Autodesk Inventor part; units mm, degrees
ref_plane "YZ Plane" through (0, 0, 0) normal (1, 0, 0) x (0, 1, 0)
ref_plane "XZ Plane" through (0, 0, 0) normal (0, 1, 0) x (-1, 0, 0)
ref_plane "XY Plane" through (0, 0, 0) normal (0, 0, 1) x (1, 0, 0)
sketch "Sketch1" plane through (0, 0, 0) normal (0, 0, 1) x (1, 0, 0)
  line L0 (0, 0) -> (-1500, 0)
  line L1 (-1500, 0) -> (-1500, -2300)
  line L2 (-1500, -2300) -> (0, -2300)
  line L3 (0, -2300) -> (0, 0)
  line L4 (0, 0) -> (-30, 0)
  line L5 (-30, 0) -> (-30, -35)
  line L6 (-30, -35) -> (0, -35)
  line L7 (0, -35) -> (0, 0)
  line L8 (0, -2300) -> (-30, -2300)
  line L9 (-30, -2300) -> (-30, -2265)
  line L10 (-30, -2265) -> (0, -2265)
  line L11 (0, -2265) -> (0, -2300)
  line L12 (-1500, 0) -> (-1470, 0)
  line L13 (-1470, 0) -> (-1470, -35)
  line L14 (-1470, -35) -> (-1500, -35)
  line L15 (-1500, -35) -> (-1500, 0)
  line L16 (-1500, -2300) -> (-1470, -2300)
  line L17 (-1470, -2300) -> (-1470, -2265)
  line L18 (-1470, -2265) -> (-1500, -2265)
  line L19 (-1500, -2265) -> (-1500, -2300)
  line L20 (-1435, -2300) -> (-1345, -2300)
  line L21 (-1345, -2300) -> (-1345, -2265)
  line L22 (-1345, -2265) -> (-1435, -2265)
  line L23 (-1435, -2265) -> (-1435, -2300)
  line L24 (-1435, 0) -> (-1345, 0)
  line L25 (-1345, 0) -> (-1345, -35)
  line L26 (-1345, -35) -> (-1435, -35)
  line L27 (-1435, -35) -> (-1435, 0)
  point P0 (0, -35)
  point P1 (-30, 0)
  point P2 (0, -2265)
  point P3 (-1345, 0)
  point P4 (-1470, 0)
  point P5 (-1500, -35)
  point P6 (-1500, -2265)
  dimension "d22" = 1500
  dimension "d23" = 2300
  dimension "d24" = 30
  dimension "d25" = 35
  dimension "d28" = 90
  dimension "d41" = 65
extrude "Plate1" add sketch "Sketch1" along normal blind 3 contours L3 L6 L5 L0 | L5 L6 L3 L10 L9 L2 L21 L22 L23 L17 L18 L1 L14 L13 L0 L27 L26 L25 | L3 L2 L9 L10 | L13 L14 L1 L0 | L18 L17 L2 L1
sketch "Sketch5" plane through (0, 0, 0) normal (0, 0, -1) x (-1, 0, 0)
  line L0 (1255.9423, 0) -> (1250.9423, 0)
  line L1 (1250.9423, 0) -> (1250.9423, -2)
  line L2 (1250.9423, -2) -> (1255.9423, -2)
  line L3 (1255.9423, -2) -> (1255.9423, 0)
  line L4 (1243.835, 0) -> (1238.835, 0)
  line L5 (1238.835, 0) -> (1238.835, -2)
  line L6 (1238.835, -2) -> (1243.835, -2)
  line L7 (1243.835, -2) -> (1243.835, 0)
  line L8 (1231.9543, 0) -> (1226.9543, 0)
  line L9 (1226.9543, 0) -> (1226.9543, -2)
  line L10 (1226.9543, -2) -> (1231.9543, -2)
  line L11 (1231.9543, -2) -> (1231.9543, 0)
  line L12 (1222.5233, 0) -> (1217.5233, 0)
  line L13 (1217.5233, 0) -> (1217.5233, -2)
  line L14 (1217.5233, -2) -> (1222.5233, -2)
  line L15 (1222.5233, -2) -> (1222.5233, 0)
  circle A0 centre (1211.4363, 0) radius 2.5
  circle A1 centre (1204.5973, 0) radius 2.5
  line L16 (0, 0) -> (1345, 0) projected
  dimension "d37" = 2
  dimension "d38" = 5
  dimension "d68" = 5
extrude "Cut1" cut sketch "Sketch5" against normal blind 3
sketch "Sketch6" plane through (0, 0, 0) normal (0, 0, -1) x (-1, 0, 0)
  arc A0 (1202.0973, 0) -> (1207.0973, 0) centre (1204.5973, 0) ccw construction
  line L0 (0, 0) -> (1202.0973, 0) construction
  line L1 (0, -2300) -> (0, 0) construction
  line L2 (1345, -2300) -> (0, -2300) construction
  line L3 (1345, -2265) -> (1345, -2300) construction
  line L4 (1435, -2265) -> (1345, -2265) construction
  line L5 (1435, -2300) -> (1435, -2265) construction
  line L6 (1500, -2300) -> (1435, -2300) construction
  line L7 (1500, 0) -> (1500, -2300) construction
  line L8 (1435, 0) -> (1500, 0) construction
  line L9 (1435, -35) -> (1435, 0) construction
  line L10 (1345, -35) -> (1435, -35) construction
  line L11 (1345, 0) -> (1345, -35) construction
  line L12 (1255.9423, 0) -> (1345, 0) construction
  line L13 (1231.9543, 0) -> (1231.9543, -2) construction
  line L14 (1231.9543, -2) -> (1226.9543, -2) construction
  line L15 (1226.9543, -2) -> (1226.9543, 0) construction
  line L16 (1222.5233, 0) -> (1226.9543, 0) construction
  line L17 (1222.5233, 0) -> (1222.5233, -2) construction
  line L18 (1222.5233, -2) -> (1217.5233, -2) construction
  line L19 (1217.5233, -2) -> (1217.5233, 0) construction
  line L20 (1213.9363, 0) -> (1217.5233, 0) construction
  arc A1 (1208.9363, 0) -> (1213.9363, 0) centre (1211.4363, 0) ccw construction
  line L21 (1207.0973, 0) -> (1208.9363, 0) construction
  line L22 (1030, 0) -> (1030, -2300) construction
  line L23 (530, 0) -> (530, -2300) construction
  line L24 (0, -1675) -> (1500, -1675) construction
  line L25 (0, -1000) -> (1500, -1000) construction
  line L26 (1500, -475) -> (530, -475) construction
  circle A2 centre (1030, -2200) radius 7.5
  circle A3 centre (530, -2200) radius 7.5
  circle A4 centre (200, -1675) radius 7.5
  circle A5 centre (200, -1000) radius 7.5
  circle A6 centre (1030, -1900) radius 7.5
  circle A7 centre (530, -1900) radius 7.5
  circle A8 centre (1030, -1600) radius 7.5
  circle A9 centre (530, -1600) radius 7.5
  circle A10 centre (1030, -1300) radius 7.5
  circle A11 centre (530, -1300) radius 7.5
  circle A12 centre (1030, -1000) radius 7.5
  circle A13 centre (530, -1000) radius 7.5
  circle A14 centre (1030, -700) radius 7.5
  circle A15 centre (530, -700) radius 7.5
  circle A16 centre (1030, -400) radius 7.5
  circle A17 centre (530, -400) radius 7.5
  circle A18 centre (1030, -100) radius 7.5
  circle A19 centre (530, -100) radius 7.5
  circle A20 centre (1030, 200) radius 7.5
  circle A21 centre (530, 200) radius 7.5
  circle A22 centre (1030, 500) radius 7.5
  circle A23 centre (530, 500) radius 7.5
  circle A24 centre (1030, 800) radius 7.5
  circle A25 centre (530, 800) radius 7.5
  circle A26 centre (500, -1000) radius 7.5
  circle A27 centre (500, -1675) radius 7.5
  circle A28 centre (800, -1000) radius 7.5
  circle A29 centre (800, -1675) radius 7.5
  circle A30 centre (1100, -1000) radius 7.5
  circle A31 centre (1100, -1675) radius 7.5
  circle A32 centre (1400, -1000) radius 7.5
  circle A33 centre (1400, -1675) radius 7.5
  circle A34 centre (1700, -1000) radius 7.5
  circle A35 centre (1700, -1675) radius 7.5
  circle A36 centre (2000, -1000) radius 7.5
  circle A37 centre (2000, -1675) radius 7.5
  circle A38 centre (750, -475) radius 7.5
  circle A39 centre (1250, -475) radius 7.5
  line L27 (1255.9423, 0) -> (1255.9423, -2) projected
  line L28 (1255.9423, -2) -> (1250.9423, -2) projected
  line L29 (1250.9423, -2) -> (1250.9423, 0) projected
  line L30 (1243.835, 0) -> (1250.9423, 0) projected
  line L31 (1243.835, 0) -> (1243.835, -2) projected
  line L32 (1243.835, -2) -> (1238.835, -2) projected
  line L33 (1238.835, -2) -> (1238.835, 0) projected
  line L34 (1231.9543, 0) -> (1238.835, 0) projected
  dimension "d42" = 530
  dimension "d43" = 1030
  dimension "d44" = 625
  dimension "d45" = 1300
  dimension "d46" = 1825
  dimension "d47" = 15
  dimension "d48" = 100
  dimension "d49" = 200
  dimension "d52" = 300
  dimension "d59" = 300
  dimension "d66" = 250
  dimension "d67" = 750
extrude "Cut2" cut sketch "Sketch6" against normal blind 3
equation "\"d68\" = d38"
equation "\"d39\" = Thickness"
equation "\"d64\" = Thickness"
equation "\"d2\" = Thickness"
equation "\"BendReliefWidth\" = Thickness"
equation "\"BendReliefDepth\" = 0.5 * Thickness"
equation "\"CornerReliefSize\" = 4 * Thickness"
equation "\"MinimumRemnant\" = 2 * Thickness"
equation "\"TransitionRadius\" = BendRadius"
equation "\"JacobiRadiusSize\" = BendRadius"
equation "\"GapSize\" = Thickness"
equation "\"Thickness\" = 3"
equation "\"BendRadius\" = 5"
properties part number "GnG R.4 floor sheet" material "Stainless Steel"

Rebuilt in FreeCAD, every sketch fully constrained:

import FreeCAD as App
import Part
import Sketcher

V = App.Vector

doc = App.newDocument("Part")
params = doc.addObject("Spreadsheet::Sheet", "Params")
for row, (alias, value) in enumerate([
    ("sketch1_width", "90 mm"),
    ("sketch1_width2", "65 mm"),
    ("sketch1_height", "35 mm"),
    ("sketch1_height2", "2300 mm"),
    ("pad1_length", "3 mm"),
    ("sketch2_diameter", "5 mm"),
    ("sketch2_width", "5 mm"),
    ("sketch2_height", "2 mm"),
    ("pocket1_length", "3 mm"),
    ("sketch3_diameter", "15 mm"),
    ("pocket2_length", "3 mm"),
], start=1):
    params.set(f"A{row}", alias)
    params.set(f"B{row}", "=" + value)
    params.setAlias(f"B{row}", alias)

body = doc.addObject("PartDesign::Body", "Body")

# Sketch on XY plane
sketch1 = doc.addObject("Sketcher::SketchObject", "Sketch")
body.addObject(sketch1)
sketch1.AttachmentSupport = (doc.XY_Plane, [""])
sketch1.MapMode = "FlatFace"
sketch1.addGeometry([
    Part.LineSegment(V(0, 0, 0), V(-1345, 0, 0)),  # 0
    Part.LineSegment(V(-1345, 0, 0), V(-1345, -35, 0)),  # 1
    Part.LineSegment(V(-1345, -35, 0), V(-1435, -35, 0)),  # 2
    Part.LineSegment(V(-1435, -35, 0), V(-1435, 0, 0)),  # 3
    Part.LineSegment(V(-1435, 0, 0), V(-1500, 0, 0)),  # 4
    Part.LineSegment(V(-1500, 0, 0), V(-1500, -2300, 0)),  # 5
    Part.LineSegment(V(-1500, -2300, 0), V(-1435, -2300, 0)),  # 6
    Part.LineSegment(V(-1435, -2300, 0), V(-1435, -2265, 0)),  # 7
    Part.LineSegment(V(-1435, -2265, 0), V(-1345, -2265, 0)),  # 8
    Part.LineSegment(V(-1345, -2265, 0), V(-1345, -2300, 0)),  # 9
    Part.LineSegment(V(-1345, -2300, 0), V(0, -2300, 0)),  # 10
    Part.LineSegment(V(0, -2300, 0), V(0, 0, 0)),  # 11
], False)
sketch1.addConstraint([
    Sketcher.Constraint("Coincident", 0, 2, 1, 1),
    Sketcher.Constraint("Coincident", 1, 2, 2, 1),
    Sketcher.Constraint("Coincident", 2, 2, 3, 1),
    Sketcher.Constraint("Coincident", 3, 2, 4, 1),
    Sketcher.Constraint("Coincident", 4, 2, 5, 1),
    Sketcher.Constraint("Coincident", 5, 2, 6, 1),
    Sketcher.Constraint("Coincident", 6, 2, 7, 1),
    Sketcher.Constraint("Coincident", 7, 2, 8, 1),
    Sketcher.Constraint("Coincident", 8, 2, 9, 1),
    Sketcher.Constraint("Coincident", 9, 2, 10, 1),
    Sketcher.Constraint("Coincident", 10, 2, 11, 1),
    Sketcher.Constraint("Coincident", 11, 2, 0, 1),
    Sketcher.Constraint("Horizontal", 0),
    Sketcher.Constraint("Vertical", 1),
    Sketcher.Constraint("Horizontal", 2),
    Sketcher.Constraint("Vertical", 3),
    Sketcher.Constraint("Horizontal", 4),
    Sketcher.Constraint("Vertical", 5),
    Sketcher.Constraint("Horizontal", 6),
    Sketcher.Constraint("Vertical", 7),
    Sketcher.Constraint("Horizontal", 8),
    Sketcher.Constraint("Vertical", 9),
    Sketcher.Constraint("Horizontal", 10),
    Sketcher.Constraint("Vertical", 11),
    Sketcher.Constraint("Coincident", 11, 2, -1, 1),
    Sketcher.Constraint("PointOnObject", 3, 2, -1),
    Sketcher.Constraint("Horizontal", 6, 2, 9, 2),
    Sketcher.Constraint("Vertical", 3, 2, 6, 2),
    Sketcher.Constraint("Vertical", 1, 2, 8, 2),
    Sketcher.Constraint("Equal", 3, 7),
    Sketcher.Constraint("DistanceX", 2, 2, 2, 1, 90.0),
    Sketcher.Constraint("DistanceX", 4, 2, 4, 1, 65.0),
    Sketcher.Constraint("DistanceY", 1, 2, 1, 1, 35.0),
    Sketcher.Constraint("DistanceY", 5, 2, 5, 1, 2300.0),
    Sketcher.Constraint("DistanceX", 4, 2, -1, 1, 1500.0),
])
sketch1.setExpression("Constraints[30]", "Params.sketch1_width")
sketch1.setExpression("Constraints[31]", "Params.sketch1_width2")
sketch1.setExpression("Constraints[32]", "Params.sketch1_height")
sketch1.setExpression("Constraints[33]", "Params.sketch1_height2")
pad1 = doc.addObject("PartDesign::Pad", "Pad")
body.addObject(pad1)
pad1.Profile = sketch1
pad1.setExpression("Length", "Params.pad1_length")

# Sketch on XY plane
sketch2 = doc.addObject("Sketcher::SketchObject", "Sketch001")
body.addObject(sketch2)
sketch2.AttachmentSupport = (doc.XY_Plane, [""])
sketch2.MapMode = "FlatFace"
sketch2.addGeometry([
    Part.LineSegment(V(-1255.9, -2, 0), V(-1255.9, 0, 0)),  # 0
    Part.LineSegment(V(-1255.9, 0, 0), V(-1250.9, 0, 0)),  # 1
    Part.LineSegment(V(-1250.9, 0, 0), V(-1250.9, -2, 0)),  # 2
    Part.LineSegment(V(-1250.9, -2, 0), V(-1255.9, -2, 0)),  # 3
    Part.Circle(V(-1204.6, 0, 0), V(0, 0, 1), 2.5),  # 4
    Part.Circle(V(-1211.4, 0, 0), V(0, 0, 1), 2.5),  # 5
    Part.LineSegment(V(-1222.5, -2, 0), V(-1222.5, 0, 0)),  # 6
    Part.LineSegment(V(-1222.5, 0, 0), V(-1217.5, 0, 0)),  # 7
    Part.LineSegment(V(-1217.5, 0, 0), V(-1217.5, -2, 0)),  # 8
    Part.LineSegment(V(-1217.5, -2, 0), V(-1222.5, -2, 0)),  # 9
    Part.LineSegment(V(-1232, -2, 0), V(-1232, 0, 0)),  # 10
    Part.LineSegment(V(-1232, 0, 0), V(-1227, 0, 0)),  # 11
    Part.LineSegment(V(-1227, 0, 0), V(-1227, -2, 0)),  # 12
    Part.LineSegment(V(-1227, -2, 0), V(-1232, -2, 0)),  # 13
    Part.LineSegment(V(-1243.8, -2, 0), V(-1243.8, 0, 0)),  # 14
    Part.LineSegment(V(-1243.8, 0, 0), V(-1238.8, 0, 0)),  # 15
    Part.LineSegment(V(-1238.8, 0, 0), V(-1238.8, -2, 0)),  # 16
    Part.LineSegment(V(-1238.8, -2, 0), V(-1243.8, -2, 0)),  # 17
], False)
sketch2.addConstraint([
    Sketcher.Constraint("Coincident", 0, 2, 1, 1),
    Sketcher.Constraint("Coincident", 1, 2, 2, 1),
    Sketcher.Constraint("Coincident", 2, 2, 3, 1),
    Sketcher.Constraint("Coincident", 3, 2, 0, 1),
    Sketcher.Constraint("Coincident", 6, 2, 7, 1),
    Sketcher.Constraint("Coincident", 7, 2, 8, 1),
    Sketcher.Constraint("Coincident", 8, 2, 9, 1),
    Sketcher.Constraint("Coincident", 9, 2, 6, 1),
    Sketcher.Constraint("Coincident", 10, 2, 11, 1),
    Sketcher.Constraint("Coincident", 11, 2, 12, 1),
    Sketcher.Constraint("Coincident", 12, 2, 13, 1),
    Sketcher.Constraint("Coincident", 13, 2, 10, 1),
    Sketcher.Constraint("Coincident", 14, 2, 15, 1),
    Sketcher.Constraint("Coincident", 15, 2, 16, 1),
    Sketcher.Constraint("Coincident", 16, 2, 17, 1),
    Sketcher.Constraint("Coincident", 17, 2, 14, 1),
    Sketcher.Constraint("Vertical", 0),
    Sketcher.Constraint("Horizontal", 1),
    Sketcher.Constraint("Vertical", 2),
    Sketcher.Constraint("Horizontal", 3),
    Sketcher.Constraint("Vertical", 6),
    Sketcher.Constraint("Horizontal", 7),
    Sketcher.Constraint("Vertical", 8),
    Sketcher.Constraint("Horizontal", 9),
    Sketcher.Constraint("Vertical", 10),
    Sketcher.Constraint("Horizontal", 11),
    Sketcher.Constraint("Vertical", 12),
    Sketcher.Constraint("Horizontal", 13),
    Sketcher.Constraint("Vertical", 14),
    Sketcher.Constraint("Horizontal", 15),
    Sketcher.Constraint("Vertical", 16),
    Sketcher.Constraint("Horizontal", 17),
    Sketcher.Constraint("Equal", 4, 5),
    Sketcher.Constraint("PointOnObject", 4, 3, -1),
    Sketcher.Constraint("PointOnObject", 5, 3, -1),
    Sketcher.Constraint("PointOnObject", 0, 2, -1),
    Sketcher.Constraint("PointOnObject", 6, 2, -1),
    Sketcher.Constraint("PointOnObject", 10, 2, -1),
    Sketcher.Constraint("PointOnObject", 14, 2, -1),
    Sketcher.Constraint("Horizontal", 3, 2, 8, 2),
    Sketcher.Constraint("Horizontal", 9, 2, 12, 2),
    Sketcher.Constraint("Horizontal", 13, 2, 16, 2),
    Sketcher.Constraint("Equal", 3, 7),
    Sketcher.Constraint("Equal", 9, 11),
    Sketcher.Constraint("Equal", 13, 15),
    Sketcher.Constraint("Diameter", 4, 5.0),
    Sketcher.Constraint("DistanceX", 1, 1, 1, 2, 5.0),
    Sketcher.Constraint("DistanceY", 0, 1, 0, 2, 2.0),
    Sketcher.Constraint("DistanceX", 14, 2, -1, 1, 1243.835),
    Sketcher.Constraint("DistanceX", 5, 3, 4, 3, 6.839),
    Sketcher.Constraint("DistanceX", 0, 2, 5, 3, 44.506),
    Sketcher.Constraint("DistanceX", 6, 2, 5, 3, 11.087),
    Sketcher.Constraint("DistanceX", 10, 2, 6, 2, 9.431),
    Sketcher.Constraint("DistanceX", 4, 3, -1, 1, 1204.5973),
])
sketch2.setExpression("Constraints[45]", "Params.sketch2_diameter")
sketch2.setExpression("Constraints[46]", "Params.sketch2_width")
sketch2.setExpression("Constraints[47]", "Params.sketch2_height")
pocket1 = doc.addObject("PartDesign::Pocket", "Pocket")
body.addObject(pocket1)
pocket1.Profile = sketch2
pocket1.setExpression("Length", "Params.pocket1_length")
pocket1.Reversed = True

# Sketch on XY plane
sketch3 = doc.addObject("Sketcher::SketchObject", "Sketch002")
body.addObject(sketch3)
sketch3.AttachmentSupport = (doc.XY_Plane, [""])
sketch3.MapMode = "FlatFace"
sketch3.addGeometry([
    Part.Circle(V(-1030, -2200, 0), V(0, 0, 1), 8),  # 0
    Part.Circle(V(-530, -2200, 0), V(0, 0, 1), 8),  # 1
    Part.Circle(V(-200, -1675, 0), V(0, 0, 1), 8),  # 2
    Part.Circle(V(-200, -1000, 0), V(0, 0, 1), 8),  # 3
    Part.Circle(V(-1030, -1900, 0), V(0, 0, 1), 8),  # 4
    Part.Circle(V(-530, -1900, 0), V(0, 0, 1), 8),  # 5
    Part.Circle(V(-1030, -1600, 0), V(0, 0, 1), 8),  # 6
    Part.Circle(V(-530, -1600, 0), V(0, 0, 1), 8),  # 7
    Part.Circle(V(-1030, -1300, 0), V(0, 0, 1), 8),  # 8
    Part.Circle(V(-530, -1300, 0), V(0, 0, 1), 8),  # 9
    Part.Circle(V(-1030, -1000, 0), V(0, 0, 1), 8),  # 10
    Part.Circle(V(-530, -1000, 0), V(0, 0, 1), 8),  # 11
    Part.Circle(V(-1030, -700, 0), V(0, 0, 1), 8),  # 12
    Part.Circle(V(-530, -700, 0), V(0, 0, 1), 8),  # 13
    Part.Circle(V(-1030, -400, 0), V(0, 0, 1), 8),  # 14
    Part.Circle(V(-530, -400, 0), V(0, 0, 1), 8),  # 15
    Part.Circle(V(-1030, -100, 0), V(0, 0, 1), 8),  # 16
    Part.Circle(V(-530, -100, 0), V(0, 0, 1), 8),  # 17
    Part.Circle(V(-1030, 200, 0), V(0, 0, 1), 8),  # 18
    Part.Circle(V(-530, 200, 0), V(0, 0, 1), 8),  # 19
    Part.Circle(V(-1030, 500, 0), V(0, 0, 1), 8),  # 20
    Part.Circle(V(-530, 500, 0), V(0, 0, 1), 8),  # 21
    Part.Circle(V(-1030, 800, 0), V(0, 0, 1), 8),  # 22
    Part.Circle(V(-530, 800, 0), V(0, 0, 1), 8),  # 23
    Part.Circle(V(-500, -1000, 0), V(0, 0, 1), 8),  # 24
    Part.Circle(V(-500, -1675, 0), V(0, 0, 1), 8),  # 25
    Part.Circle(V(-800, -1000, 0), V(0, 0, 1), 8),  # 26
    Part.Circle(V(-800, -1675, 0), V(0, 0, 1), 8),  # 27
    Part.Circle(V(-1100, -1000, 0), V(0, 0, 1), 8),  # 28
    Part.Circle(V(-1100, -1675, 0), V(0, 0, 1), 8),  # 29
    Part.Circle(V(-1400, -1000, 0), V(0, 0, 1), 8),  # 30
    Part.Circle(V(-1400, -1675, 0), V(0, 0, 1), 8),  # 31
    Part.Circle(V(-1700, -1000, 0), V(0, 0, 1), 8),  # 32
    Part.Circle(V(-1700, -1675, 0), V(0, 0, 1), 8),  # 33
    Part.Circle(V(-2000, -1000, 0), V(0, 0, 1), 8),  # 34
    Part.Circle(V(-2000, -1675, 0), V(0, 0, 1), 8),  # 35
    Part.Circle(V(-750, -475, 0), V(0, 0, 1), 8),  # 36
    Part.Circle(V(-1250, -475, 0), V(0, 0, 1), 8),  # 37
], False)
sketch3.addConstraint([
    Sketcher.Constraint("Equal", 0, 1),
    Sketcher.Constraint("Equal", 1, 2),
    Sketcher.Constraint("Equal", 2, 3),
    Sketcher.Constraint("Equal", 3, 4),
    Sketcher.Constraint("Equal", 4, 5),
    Sketcher.Constraint("Equal", 5, 6),
    Sketcher.Constraint("Equal", 6, 7),
    Sketcher.Constraint("Equal", 7, 8),
    Sketcher.Constraint("Equal", 8, 9),
    Sketcher.Constraint("Equal", 9, 10),
    Sketcher.Constraint("Equal", 10, 11),
    Sketcher.Constraint("Equal", 11, 12),
    Sketcher.Constraint("Equal", 12, 13),
    Sketcher.Constraint("Equal", 13, 14),
    Sketcher.Constraint("Equal", 14, 15),
    Sketcher.Constraint("Equal", 15, 16),
    Sketcher.Constraint("Equal", 16, 17),
    Sketcher.Constraint("Equal", 17, 18),
    Sketcher.Constraint("Equal", 18, 19),
    Sketcher.Constraint("Equal", 19, 20),
    Sketcher.Constraint("Equal", 20, 21),
    Sketcher.Constraint("Equal", 21, 22),
    Sketcher.Constraint("Equal", 22, 23),
    Sketcher.Constraint("Equal", 23, 24),
    Sketcher.Constraint("Equal", 24, 25),
    Sketcher.Constraint("Equal", 25, 26),
    Sketcher.Constraint("Equal", 26, 27),
    Sketcher.Constraint("Equal", 27, 28),
    Sketcher.Constraint("Equal", 28, 29),
    Sketcher.Constraint("Equal", 29, 30),
    Sketcher.Constraint("Equal", 30, 31),
    Sketcher.Constraint("Equal", 31, 32),
    Sketcher.Constraint("Equal", 32, 33),
    Sketcher.Constraint("Equal", 33, 34),
    Sketcher.Constraint("Equal", 34, 35),
    Sketcher.Constraint("Equal", 35, 36),
    Sketcher.Constraint("Equal", 36, 37),
    Sketcher.Constraint("Horizontal", 0, 3, 1, 3),
    Sketcher.Constraint("Horizontal", 4, 3, 5, 3),
    Sketcher.Constraint("Horizontal", 6, 3, 7, 3),
    Sketcher.Constraint("Horizontal", 8, 3, 9, 3),
    Sketcher.Constraint("Horizontal", 3, 3, 10, 3),
    Sketcher.Constraint("Horizontal", 10, 3, 11, 3),
    Sketcher.Constraint("Horizontal", 12, 3, 13, 3),
    Sketcher.Constraint("Horizontal", 14, 3, 15, 3),
    Sketcher.Constraint("Horizontal", 16, 3, 17, 3),
    Sketcher.Constraint("Horizontal", 18, 3, 19, 3),
    Sketcher.Constraint("Horizontal", 20, 3, 21, 3),
    Sketcher.Constraint("Horizontal", 22, 3, 23, 3),
    Sketcher.Constraint("Horizontal", 11, 3, 24, 3),
    Sketcher.Constraint("Horizontal", 2, 3, 25, 3),
    Sketcher.Constraint("Horizontal", 24, 3, 26, 3),
    Sketcher.Constraint("Horizontal", 25, 3, 27, 3),
    Sketcher.Constraint("Horizontal", 26, 3, 28, 3),
    Sketcher.Constraint("Horizontal", 27, 3, 29, 3),
    Sketcher.Constraint("Horizontal", 28, 3, 30, 3),
    Sketcher.Constraint("Horizontal", 29, 3, 31, 3),
    Sketcher.Constraint("Horizontal", 30, 3, 32, 3),
    Sketcher.Constraint("Horizontal", 31, 3, 33, 3),
    Sketcher.Constraint("Horizontal", 32, 3, 34, 3),
    Sketcher.Constraint("Horizontal", 33, 3, 35, 3),
    Sketcher.Constraint("Horizontal", 36, 3, 37, 3),
    Sketcher.Constraint("Vertical", 2, 3, 3, 3),
    Sketcher.Constraint("Vertical", 0, 3, 4, 3),
    Sketcher.Constraint("Vertical", 1, 3, 5, 3),
    Sketcher.Constraint("Vertical", 4, 3, 6, 3),
    Sketcher.Constraint("Vertical", 5, 3, 7, 3),
    Sketcher.Constraint("Vertical", 6, 3, 8, 3),
    Sketcher.Constraint("Vertical", 7, 3, 9, 3),
    Sketcher.Constraint("Vertical", 8, 3, 10, 3),
    Sketcher.Constraint("Vertical", 9, 3, 11, 3),
    Sketcher.Constraint("Vertical", 10, 3, 12, 3),
    Sketcher.Constraint("Vertical", 11, 3, 13, 3),
    Sketcher.Constraint("Vertical", 12, 3, 14, 3),
    Sketcher.Constraint("Vertical", 13, 3, 15, 3),
    Sketcher.Constraint("Vertical", 14, 3, 16, 3),
    Sketcher.Constraint("Vertical", 15, 3, 17, 3),
    Sketcher.Constraint("Vertical", 16, 3, 18, 3),
    Sketcher.Constraint("Vertical", 17, 3, 19, 3),
    Sketcher.Constraint("Vertical", 18, 3, 20, 3),
    Sketcher.Constraint("Vertical", 19, 3, 21, 3),
    Sketcher.Constraint("Vertical", 20, 3, 22, 3),
    Sketcher.Constraint("Vertical", 21, 3, 23, 3),
    Sketcher.Constraint("Vertical", 24, 3, 25, 3),
    Sketcher.Constraint("Vertical", 26, 3, 27, 3),
    Sketcher.Constraint("Vertical", 28, 3, 29, 3),
    Sketcher.Constraint("Vertical", 30, 3, 31, 3),
    Sketcher.Constraint("Vertical", 32, 3, 33, 3),
    Sketcher.Constraint("Vertical", 34, 3, 35, 3),
    Sketcher.Constraint("Diameter", 0, 15.0),
    Sketcher.Constraint("DistanceX", 0, 3, -1, 1, 1030.0),
    Sketcher.Constraint("DistanceX", 1, 3, -1, 1, 530.0),
    Sketcher.Constraint("DistanceX", 2, 3, -1, 1, 200.0),
    Sketcher.Constraint("DistanceY", 8, 3, -1, 1, 1300.0),
    Sketcher.Constraint("DistanceY", 16, 3, -1, 1, 100.0),
    Sketcher.Constraint("DistanceY", -1, 1, 18, 3, 200.0),
    Sketcher.Constraint("DistanceX", 36, 3, -1, 1, 750.0),
    Sketcher.Constraint("DistanceY", 0, 3, 4, 3, 300.0),
    Sketcher.Constraint("DistanceY", 4, 3, 6, 3, 300.0),
    Sketcher.Constraint("DistanceY", 6, 3, 8, 3, 300.0),
    Sketcher.Constraint("DistanceY", 8, 3, 3, 3, 300.0),
    Sketcher.Constraint("DistanceY", 10, 3, 12, 3, 300.0),
    Sketcher.Constraint("DistanceY", 12, 3, 14, 3, 300.0),
    Sketcher.Constraint("DistanceY", 18, 3, 20, 3, 300.0),
    Sketcher.Constraint("DistanceY", 20, 3, 22, 3, 300.0),
    Sketcher.Constraint("DistanceX", 24, 3, 3, 3, 300.0),
    Sketcher.Constraint("DistanceX", 26, 3, 24, 3, 300.0),
    Sketcher.Constraint("DistanceX", 28, 3, 26, 3, 300.0),
    Sketcher.Constraint("DistanceX", 30, 3, 28, 3, 300.0),
    Sketcher.Constraint("DistanceX", 32, 3, 30, 3, 300.0),
    Sketcher.Constraint("DistanceX", 34, 3, 32, 3, 300.0),
    Sketcher.Constraint("DistanceY", 2, 3, -1, 1, 1675.0),
    Sketcher.Constraint("DistanceY", 36, 3, -1, 1, 475.0),
    Sketcher.Constraint("DistanceX", 37, 3, -1, 1, 1250.0),
])
sketch3.setExpression("Constraints[89]", "Params.sketch3_diameter")
pocket2 = doc.addObject("PartDesign::Pocket", "Pocket001")
body.addObject(pocket2)
pocket2.Profile = sketch3
pocket2.setExpression("Length", "Params.pocket2_length")
pocket2.Reversed = True

doc.recompute()
